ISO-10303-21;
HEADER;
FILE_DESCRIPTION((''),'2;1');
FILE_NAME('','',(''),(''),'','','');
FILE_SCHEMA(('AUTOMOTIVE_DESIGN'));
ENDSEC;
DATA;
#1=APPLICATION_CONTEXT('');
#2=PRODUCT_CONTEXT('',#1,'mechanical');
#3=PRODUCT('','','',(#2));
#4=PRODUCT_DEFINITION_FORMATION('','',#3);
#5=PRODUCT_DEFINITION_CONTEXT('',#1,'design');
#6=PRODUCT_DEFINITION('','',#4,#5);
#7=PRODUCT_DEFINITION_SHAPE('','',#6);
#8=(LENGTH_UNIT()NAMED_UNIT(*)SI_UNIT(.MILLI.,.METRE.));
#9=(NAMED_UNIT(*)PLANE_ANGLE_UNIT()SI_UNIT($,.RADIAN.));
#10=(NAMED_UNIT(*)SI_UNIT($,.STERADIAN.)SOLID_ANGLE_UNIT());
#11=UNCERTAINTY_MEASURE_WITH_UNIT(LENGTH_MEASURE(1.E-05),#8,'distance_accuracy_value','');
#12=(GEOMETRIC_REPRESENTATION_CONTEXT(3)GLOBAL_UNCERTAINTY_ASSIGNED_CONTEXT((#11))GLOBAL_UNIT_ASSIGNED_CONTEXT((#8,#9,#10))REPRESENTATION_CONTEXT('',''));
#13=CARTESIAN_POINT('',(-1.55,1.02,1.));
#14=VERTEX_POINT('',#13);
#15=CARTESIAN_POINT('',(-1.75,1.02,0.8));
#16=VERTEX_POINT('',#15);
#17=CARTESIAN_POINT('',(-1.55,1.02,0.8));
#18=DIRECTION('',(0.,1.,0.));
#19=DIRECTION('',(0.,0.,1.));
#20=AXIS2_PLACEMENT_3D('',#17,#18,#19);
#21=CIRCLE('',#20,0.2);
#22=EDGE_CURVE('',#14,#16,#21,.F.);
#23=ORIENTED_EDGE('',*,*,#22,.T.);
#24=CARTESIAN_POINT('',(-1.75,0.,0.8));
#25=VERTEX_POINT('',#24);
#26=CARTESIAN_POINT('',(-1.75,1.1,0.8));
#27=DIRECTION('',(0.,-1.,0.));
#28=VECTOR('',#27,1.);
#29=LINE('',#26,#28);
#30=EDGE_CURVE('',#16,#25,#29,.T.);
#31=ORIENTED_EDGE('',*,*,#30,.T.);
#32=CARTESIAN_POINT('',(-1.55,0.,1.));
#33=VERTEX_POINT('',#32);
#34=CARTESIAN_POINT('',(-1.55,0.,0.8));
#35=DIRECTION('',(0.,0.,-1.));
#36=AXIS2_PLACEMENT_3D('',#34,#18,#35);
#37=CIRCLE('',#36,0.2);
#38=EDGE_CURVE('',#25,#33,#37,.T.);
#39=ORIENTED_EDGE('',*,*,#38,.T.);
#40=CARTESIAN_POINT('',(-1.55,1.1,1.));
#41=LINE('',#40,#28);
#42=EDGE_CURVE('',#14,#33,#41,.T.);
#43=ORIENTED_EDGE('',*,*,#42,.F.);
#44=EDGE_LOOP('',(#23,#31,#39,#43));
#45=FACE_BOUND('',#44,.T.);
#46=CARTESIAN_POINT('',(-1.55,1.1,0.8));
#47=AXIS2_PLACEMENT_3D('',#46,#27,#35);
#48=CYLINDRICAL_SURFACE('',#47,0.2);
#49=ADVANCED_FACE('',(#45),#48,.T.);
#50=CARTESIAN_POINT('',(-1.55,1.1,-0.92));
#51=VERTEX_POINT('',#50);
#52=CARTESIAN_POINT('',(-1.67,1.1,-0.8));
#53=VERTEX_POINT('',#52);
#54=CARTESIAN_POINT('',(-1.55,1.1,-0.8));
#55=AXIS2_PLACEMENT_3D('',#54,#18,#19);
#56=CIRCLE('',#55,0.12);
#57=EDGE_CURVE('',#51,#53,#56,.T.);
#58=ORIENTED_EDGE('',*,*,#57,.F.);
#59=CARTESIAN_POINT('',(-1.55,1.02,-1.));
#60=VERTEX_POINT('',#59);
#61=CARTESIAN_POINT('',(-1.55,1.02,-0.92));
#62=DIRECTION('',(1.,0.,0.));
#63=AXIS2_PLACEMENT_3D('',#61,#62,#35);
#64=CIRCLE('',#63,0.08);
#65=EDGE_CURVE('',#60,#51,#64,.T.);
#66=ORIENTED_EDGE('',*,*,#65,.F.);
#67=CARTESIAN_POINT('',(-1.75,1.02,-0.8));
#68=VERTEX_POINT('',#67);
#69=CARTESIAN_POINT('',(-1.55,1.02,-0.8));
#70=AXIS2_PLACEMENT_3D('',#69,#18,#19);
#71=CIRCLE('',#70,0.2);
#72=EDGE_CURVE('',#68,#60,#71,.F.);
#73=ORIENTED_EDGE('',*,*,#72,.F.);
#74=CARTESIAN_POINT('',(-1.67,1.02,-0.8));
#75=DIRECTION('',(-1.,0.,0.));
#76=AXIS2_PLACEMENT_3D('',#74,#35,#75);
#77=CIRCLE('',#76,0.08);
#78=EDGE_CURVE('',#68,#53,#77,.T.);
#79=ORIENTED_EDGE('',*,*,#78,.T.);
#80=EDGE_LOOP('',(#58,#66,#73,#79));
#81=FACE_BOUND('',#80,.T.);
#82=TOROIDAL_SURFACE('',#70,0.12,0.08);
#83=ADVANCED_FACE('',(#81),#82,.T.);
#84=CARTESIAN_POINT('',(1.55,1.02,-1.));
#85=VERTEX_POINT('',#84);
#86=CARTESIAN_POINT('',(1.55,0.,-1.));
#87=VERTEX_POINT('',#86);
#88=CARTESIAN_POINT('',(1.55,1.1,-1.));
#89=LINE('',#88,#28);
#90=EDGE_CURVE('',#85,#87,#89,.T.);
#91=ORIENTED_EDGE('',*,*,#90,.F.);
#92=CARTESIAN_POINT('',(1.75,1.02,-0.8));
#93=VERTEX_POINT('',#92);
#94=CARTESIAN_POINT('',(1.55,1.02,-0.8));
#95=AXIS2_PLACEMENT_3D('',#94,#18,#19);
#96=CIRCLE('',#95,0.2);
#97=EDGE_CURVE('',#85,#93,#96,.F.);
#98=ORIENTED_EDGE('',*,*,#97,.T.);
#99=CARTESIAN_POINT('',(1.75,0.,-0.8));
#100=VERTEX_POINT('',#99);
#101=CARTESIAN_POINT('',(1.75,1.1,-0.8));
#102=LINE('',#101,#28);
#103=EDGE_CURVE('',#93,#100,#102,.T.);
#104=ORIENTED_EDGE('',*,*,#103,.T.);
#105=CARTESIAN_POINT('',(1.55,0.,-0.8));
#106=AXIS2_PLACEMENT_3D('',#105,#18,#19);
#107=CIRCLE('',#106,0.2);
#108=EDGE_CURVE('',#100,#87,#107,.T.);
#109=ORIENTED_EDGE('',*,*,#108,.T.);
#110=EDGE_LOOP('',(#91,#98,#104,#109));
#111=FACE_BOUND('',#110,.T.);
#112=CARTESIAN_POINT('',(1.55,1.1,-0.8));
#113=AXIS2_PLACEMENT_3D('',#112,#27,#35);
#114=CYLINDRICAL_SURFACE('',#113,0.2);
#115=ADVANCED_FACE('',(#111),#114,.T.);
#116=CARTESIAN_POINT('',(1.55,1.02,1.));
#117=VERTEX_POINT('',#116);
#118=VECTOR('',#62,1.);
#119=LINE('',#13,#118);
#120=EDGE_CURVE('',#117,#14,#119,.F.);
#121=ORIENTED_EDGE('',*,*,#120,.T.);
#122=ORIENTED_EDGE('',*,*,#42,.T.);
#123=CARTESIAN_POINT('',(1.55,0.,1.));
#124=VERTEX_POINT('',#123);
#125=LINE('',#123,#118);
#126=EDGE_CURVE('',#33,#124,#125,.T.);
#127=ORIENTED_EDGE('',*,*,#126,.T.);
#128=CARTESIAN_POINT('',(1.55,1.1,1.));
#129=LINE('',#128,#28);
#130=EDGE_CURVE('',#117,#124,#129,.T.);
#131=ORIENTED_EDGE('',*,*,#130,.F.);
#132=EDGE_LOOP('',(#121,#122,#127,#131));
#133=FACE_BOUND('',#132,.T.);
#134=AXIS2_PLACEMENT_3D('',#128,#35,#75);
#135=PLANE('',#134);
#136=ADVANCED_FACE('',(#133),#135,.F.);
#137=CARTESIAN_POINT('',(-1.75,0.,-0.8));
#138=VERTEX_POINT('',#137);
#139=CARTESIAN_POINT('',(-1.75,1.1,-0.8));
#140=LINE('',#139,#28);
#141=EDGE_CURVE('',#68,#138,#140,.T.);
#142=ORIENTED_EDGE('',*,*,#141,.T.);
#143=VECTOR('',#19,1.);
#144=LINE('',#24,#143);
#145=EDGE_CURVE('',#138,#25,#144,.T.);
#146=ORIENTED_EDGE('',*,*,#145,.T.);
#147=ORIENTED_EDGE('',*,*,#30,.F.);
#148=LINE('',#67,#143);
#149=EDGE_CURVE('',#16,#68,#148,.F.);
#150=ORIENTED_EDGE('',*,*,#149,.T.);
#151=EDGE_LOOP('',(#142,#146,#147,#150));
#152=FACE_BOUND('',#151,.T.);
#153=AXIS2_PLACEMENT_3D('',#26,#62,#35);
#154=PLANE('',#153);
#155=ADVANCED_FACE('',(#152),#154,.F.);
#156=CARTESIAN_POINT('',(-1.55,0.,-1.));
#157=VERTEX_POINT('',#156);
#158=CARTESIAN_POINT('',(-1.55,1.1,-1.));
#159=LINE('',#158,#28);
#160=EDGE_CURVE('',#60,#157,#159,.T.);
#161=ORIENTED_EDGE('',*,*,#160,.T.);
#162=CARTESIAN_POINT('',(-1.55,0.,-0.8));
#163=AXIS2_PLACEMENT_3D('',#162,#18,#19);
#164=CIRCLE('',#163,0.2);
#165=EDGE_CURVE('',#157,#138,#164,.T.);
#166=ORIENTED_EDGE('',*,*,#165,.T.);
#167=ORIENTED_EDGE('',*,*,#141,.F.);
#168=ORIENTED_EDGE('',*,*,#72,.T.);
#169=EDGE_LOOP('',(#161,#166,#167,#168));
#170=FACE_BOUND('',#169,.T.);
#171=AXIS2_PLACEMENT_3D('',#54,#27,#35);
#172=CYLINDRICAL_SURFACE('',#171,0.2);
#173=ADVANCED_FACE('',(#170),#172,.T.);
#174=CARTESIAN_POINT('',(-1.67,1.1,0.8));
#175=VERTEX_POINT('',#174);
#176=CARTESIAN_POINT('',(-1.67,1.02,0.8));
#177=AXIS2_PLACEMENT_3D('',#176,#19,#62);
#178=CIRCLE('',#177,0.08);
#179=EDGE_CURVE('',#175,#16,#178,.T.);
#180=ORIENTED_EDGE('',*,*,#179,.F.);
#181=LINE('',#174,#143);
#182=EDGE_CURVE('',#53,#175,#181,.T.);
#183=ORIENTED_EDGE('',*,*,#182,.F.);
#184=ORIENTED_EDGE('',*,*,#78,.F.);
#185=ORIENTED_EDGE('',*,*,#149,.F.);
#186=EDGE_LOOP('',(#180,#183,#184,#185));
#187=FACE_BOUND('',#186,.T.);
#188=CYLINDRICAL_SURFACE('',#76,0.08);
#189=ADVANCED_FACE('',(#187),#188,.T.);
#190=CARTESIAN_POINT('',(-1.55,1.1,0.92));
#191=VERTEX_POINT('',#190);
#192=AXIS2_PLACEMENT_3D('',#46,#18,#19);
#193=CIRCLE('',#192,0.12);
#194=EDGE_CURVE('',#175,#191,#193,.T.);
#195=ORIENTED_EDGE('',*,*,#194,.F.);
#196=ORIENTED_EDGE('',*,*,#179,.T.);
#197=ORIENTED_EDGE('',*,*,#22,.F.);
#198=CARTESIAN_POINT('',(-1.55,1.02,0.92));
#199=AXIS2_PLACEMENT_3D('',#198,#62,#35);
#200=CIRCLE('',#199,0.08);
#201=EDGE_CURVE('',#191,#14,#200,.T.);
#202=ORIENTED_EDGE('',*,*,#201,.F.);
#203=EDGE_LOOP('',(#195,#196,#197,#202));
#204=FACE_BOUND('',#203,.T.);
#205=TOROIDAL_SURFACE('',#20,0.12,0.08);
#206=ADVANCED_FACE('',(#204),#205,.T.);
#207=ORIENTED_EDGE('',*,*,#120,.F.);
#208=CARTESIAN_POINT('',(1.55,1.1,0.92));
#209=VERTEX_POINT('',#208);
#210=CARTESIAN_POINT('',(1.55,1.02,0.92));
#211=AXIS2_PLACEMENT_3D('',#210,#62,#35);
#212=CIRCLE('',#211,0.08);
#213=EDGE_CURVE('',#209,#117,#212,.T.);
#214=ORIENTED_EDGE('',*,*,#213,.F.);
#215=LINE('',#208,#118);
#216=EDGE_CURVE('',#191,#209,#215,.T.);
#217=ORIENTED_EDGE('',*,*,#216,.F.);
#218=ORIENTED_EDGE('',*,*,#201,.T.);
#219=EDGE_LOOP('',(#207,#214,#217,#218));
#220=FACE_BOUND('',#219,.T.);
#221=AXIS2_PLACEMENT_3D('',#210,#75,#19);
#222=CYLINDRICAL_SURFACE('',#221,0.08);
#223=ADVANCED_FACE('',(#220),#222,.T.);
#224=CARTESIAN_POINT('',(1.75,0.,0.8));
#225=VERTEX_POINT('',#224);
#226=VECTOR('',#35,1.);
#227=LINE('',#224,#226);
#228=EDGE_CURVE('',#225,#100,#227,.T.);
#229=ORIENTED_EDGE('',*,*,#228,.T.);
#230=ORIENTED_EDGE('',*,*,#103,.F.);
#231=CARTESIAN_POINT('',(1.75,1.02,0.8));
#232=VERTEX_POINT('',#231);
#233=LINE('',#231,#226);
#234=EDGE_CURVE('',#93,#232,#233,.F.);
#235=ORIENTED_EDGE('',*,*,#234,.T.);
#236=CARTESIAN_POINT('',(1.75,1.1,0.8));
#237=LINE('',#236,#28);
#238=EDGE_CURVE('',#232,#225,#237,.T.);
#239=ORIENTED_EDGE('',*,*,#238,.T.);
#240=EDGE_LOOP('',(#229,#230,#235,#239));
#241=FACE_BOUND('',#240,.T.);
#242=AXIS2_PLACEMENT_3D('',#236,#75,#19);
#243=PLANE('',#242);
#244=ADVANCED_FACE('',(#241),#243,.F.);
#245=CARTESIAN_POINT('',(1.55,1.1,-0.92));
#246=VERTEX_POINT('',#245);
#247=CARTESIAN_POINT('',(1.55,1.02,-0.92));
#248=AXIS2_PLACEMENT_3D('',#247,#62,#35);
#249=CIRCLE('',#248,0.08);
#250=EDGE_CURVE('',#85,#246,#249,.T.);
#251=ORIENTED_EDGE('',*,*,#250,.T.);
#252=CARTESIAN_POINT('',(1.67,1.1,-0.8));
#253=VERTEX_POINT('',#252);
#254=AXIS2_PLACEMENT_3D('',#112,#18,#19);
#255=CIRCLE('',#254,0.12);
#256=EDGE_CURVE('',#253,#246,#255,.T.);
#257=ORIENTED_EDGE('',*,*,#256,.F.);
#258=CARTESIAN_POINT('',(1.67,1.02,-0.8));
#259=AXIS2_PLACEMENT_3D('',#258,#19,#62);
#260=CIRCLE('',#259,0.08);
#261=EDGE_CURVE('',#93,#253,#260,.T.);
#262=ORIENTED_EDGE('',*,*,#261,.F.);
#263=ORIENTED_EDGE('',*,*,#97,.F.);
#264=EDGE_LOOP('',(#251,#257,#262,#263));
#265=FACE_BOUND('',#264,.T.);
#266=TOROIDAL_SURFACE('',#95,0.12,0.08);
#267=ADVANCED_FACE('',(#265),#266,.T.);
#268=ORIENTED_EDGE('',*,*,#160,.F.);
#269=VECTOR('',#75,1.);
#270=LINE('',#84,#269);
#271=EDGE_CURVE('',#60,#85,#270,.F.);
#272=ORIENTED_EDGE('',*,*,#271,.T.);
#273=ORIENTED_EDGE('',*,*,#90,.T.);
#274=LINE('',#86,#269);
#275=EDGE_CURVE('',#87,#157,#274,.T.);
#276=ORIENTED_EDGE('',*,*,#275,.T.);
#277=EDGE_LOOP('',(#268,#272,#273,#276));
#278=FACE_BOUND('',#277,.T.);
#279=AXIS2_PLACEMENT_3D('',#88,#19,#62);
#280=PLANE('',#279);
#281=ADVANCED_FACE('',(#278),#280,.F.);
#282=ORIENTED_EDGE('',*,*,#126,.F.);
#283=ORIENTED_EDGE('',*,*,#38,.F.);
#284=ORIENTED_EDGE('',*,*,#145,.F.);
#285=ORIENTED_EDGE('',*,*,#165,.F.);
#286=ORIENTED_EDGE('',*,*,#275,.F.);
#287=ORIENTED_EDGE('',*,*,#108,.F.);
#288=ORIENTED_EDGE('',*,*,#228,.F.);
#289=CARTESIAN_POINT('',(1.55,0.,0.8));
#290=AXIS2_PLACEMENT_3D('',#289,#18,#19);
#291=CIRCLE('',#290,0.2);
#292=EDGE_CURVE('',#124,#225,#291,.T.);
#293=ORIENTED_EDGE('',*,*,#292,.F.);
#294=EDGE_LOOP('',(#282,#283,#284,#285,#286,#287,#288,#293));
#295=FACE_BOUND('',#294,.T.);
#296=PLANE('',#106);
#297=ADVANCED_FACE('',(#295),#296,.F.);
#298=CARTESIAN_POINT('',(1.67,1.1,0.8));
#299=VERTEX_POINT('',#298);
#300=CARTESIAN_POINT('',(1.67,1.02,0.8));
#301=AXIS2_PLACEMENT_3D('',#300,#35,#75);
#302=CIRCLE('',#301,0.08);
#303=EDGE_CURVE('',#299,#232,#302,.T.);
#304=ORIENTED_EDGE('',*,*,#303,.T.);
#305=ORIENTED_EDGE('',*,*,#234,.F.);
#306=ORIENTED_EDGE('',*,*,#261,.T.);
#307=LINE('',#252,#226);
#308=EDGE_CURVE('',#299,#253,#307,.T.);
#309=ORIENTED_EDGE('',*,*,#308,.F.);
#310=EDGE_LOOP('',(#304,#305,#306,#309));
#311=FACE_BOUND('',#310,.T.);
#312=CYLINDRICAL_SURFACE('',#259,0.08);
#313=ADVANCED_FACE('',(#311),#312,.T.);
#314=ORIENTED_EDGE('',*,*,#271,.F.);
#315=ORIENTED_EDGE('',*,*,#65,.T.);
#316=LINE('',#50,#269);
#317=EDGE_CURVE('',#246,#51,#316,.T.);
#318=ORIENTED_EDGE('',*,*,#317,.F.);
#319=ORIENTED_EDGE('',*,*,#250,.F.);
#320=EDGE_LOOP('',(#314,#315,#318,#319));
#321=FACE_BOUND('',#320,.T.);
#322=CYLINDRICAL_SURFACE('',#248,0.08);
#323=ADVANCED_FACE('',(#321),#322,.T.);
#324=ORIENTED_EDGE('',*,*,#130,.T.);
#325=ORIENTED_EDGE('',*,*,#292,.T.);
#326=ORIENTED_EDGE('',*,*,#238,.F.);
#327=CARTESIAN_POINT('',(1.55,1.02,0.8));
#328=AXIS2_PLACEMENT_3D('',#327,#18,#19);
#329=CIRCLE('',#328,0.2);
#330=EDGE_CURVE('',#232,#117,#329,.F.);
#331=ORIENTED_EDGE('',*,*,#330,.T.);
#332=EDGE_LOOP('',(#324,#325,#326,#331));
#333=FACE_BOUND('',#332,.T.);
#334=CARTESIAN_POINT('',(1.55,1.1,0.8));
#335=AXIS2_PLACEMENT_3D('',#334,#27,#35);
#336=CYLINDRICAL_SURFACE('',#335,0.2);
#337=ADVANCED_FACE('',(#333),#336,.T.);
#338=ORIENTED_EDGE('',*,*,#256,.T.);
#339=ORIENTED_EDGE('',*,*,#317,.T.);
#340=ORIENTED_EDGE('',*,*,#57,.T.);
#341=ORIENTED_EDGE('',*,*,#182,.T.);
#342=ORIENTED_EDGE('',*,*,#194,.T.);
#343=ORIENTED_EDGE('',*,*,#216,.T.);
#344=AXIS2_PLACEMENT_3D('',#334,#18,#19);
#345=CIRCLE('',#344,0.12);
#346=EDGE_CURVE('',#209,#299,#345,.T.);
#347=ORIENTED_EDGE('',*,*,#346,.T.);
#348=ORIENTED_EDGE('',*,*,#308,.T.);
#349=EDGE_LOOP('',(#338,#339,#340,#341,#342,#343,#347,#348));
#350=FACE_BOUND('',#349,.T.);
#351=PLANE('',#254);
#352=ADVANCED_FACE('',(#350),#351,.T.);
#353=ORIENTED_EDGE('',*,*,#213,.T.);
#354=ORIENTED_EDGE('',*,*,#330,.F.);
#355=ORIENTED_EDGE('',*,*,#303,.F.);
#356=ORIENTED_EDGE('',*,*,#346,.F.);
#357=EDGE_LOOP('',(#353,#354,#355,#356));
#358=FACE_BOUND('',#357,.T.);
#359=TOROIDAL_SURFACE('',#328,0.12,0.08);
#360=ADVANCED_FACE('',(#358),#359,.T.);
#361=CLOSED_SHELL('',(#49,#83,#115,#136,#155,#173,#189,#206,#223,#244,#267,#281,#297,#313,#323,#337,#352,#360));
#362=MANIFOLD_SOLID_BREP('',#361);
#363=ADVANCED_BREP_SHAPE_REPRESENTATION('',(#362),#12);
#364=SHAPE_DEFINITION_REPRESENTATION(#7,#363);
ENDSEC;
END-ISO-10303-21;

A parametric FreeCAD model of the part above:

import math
import FreeCAD as App
import Part
import Sketcher
from FreeCAD import Vector
Q = App.Units.Quantity


def edges_at(feature, points):
    """Names of the edges that pass closest to the given points."""
    edges = feature.Shape.Edges
    near = lambda p: min(range(len(edges)), key=lambda i: edges[i].distToShape(Part.Vertex(*p))[0])
    return sorted({f"Edge{near(p) + 1}" for p in points})

doc = App.newDocument("Part")
params = doc.addObject("Spreadsheet::Sheet", "Params")
for row, (alias, value) in enumerate([
    ("sketch1_radius", "0.2 mm"),
    ("sketch1_width", "3.1 mm"),
    ("sketch1_height", "1.6 mm"),
    ("pad1_length", "1.1 mm"),
    ("fillet_radius", "0.08 mm"),
], start=1):
    params.set(f"A{row}", alias)
    params.set(f"B{row}", "=" + value)
    params.setAlias(f"B{row}", alias)

body = doc.addObject("PartDesign::Body", "Body")

sketch1 = body.newObject("Sketcher::SketchObject", "Sketch")
sketch1.AttachmentSupport = (doc.getObject("XZ_Plane"), [""])
sketch1.MapMode = "FlatFace"
sketch1.addGeometry(Part.LineSegment(Vector(-1.55, 1, 0), Vector(1.55, 1, 0)), False)
sketch1.addGeometry(Part.ArcOfCircle(Part.Circle(Vector(1.55, 0.8, 0), Vector(0, 0, 1), 0.2), math.radians(0), math.radians(90)), False)
sketch1.addGeometry(Part.LineSegment(Vector(1.75, 0.8, 0), Vector(1.75, -0.8, 0)), False)
sketch1.addGeometry(Part.ArcOfCircle(Part.Circle(Vector(1.55, -0.8, 0), Vector(0, 0, 1), 0.2), math.radians(-90), math.radians(0)), False)
sketch1.addGeometry(Part.LineSegment(Vector(1.55, -1, 0), Vector(-1.55, -1, 0)), False)
sketch1.addGeometry(Part.ArcOfCircle(Part.Circle(Vector(-1.55, -0.8, 0), Vector(0, 0, 1), 0.2), math.radians(-180), math.radians(-90)), False)
sketch1.addGeometry(Part.LineSegment(Vector(-1.75, -0.8, 0), Vector(-1.75, 0.8, 0)), False)
sketch1.addGeometry(Part.ArcOfCircle(Part.Circle(Vector(-1.55, 0.8, 0), Vector(0, 0, 1), 0.2), math.radians(90), math.radians(180)), False)
sketch1.addConstraint(Sketcher.Constraint("Tangent", 0, 2, 1, 2))
sketch1.addConstraint(Sketcher.Constraint("Tangent", 1, 1, 2, 1))
sketch1.addConstraint(Sketcher.Constraint("Tangent", 2, 2, 3, 2))
sketch1.addConstraint(Sketcher.Constraint("Tangent", 3, 1, 4, 1))
sketch1.addConstraint(Sketcher.Constraint("Tangent", 4, 2, 5, 2))
sketch1.addConstraint(Sketcher.Constraint("Tangent", 5, 1, 6, 1))
sketch1.addConstraint(Sketcher.Constraint("Tangent", 6, 2, 7, 2))
sketch1.addConstraint(Sketcher.Constraint("Tangent", 7, 1, 0, 1))
sketch1.addConstraint(Sketcher.Constraint("Horizontal", 0))
sketch1.addConstraint(Sketcher.Constraint("Vertical", 2))
sketch1.addConstraint(Sketcher.Constraint("Horizontal", 4))
sketch1.addConstraint(Sketcher.Constraint("Vertical", 6))
sketch1.addConstraint(Sketcher.Constraint("Equal", 1, 3))
sketch1.addConstraint(Sketcher.Constraint("Equal", 3, 5))
sketch1.addConstraint(Sketcher.Constraint("Equal", 5, 7))
sketch1.addConstraint(Sketcher.Constraint("Symmetric", 1, 3, 5, 3, -1, 1))
sketch1.addConstraint(Sketcher.Constraint("Radius", 1, Q("0.2 mm")))
sketch1.addConstraint(Sketcher.Constraint("DistanceX", 0, 1, 0, 2, Q("3.1 mm")))
sketch1.addConstraint(Sketcher.Constraint("DistanceY", 2, 2, 2, 1, Q("1.6 mm")))
sketch1.setExpression("Constraints[16]", "Params.sketch1_radius")
sketch1.setExpression("Constraints[17]", "Params.sketch1_width")
sketch1.setExpression("Constraints[18]", "Params.sketch1_height")
pad1 = body.newObject("PartDesign::Pad", "Pad")
pad1.Profile = sketch1
pad1.setExpression("Length", "Params.pad1_length")
pad1.Reversed = True
doc.recompute()

fillet = body.newObject("PartDesign::Fillet", "Fillet")
fillet.Base = (pad1, edges_at(pad1, [
    (-1.691, 1.1, -0.941),
    (-1.75, 1.1, 0),
    (-1.691, 1.1, 0.941),
    (0, 1.1, 1),
    (1.691, 1.1, 0.941),
    (1.75, 1.1, 0),
    (1.691, 1.1, -0.941),
    (0, 1.1, -1),
]))
fillet.setExpression("Radius", "Params.fillet_radius")

doc.recompute()
